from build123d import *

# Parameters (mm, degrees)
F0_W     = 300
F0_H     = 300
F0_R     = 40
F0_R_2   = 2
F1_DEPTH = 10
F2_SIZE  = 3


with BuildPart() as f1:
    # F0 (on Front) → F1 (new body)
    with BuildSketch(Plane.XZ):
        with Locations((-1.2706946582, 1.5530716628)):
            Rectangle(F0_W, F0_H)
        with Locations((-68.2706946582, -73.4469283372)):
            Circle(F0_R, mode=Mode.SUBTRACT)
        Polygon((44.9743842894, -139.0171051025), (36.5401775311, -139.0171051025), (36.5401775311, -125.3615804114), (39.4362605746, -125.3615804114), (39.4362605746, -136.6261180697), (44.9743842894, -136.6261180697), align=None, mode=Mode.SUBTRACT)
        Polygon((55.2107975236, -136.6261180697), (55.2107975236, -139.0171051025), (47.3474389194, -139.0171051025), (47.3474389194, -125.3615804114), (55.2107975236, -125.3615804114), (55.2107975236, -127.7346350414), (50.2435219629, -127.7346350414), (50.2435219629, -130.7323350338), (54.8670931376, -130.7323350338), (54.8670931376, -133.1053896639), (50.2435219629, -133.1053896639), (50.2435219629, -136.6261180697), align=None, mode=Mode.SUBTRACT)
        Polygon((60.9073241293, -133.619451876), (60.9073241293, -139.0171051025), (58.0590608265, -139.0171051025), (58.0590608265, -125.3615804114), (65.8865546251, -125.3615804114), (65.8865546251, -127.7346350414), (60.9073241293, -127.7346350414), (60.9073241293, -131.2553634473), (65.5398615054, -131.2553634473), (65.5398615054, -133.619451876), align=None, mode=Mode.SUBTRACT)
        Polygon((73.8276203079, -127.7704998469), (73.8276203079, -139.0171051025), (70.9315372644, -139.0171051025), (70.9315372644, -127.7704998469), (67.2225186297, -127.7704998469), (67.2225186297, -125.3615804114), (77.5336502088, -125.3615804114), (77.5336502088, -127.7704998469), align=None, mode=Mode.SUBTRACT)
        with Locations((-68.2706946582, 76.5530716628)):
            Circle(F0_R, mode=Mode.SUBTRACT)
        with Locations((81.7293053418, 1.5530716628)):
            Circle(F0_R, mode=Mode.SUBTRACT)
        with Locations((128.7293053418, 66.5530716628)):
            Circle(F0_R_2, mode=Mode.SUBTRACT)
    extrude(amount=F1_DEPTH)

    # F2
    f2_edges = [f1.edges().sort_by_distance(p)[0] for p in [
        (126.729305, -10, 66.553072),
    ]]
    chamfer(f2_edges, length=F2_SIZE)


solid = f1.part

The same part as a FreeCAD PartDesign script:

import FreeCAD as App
import Part
import Sketcher

V = App.Vector
Q = App.Units.Quantity


def edges_at(feature, points):
    """Names of the edges that pass closest to the given points."""
    edges = feature.Shape.Edges
    near = lambda p: min(range(len(edges)), key=lambda i: edges[i].distToShape(Part.Vertex(*p))[0])
    return sorted({f"Edge{near(p) + 1}" for p in points})


def add_polygon(sketch, points):
    """Adds a closed chain of lines whose ends are joined by coincident constraints."""
    first, n = sketch.GeometryCount, len(points)
    for a, b in zip(points, points[1:] + points[:1]):
        sketch.addGeometry(Part.LineSegment(App.Vector(*a, 0), App.Vector(*b, 0)), False)
    for i in range(n):
        sketch.addConstraint(Sketcher.Constraint("Coincident", first + i, 2, first + (i + 1) % n, 1))

doc = App.newDocument("Part")
body = doc.addObject("PartDesign::Body", "Body")

# Sketch on XZ plane
sketch1 = body.newObject("Sketcher::SketchObject", "Sketch")
sketch1.AttachmentSupport = (doc.getObject("XZ_Plane"), [""])
sketch1.MapMode = "FlatFace"
add_polygon(sketch1, [(-151.3, 151.6), (-151.3, -148.4), (148.7, -148.4), (148.7, 151.6)])  # lines 0-3
sketch1.addGeometry(Part.Circle(V(-68.3, -73.4, 0), V(0, 0, 1), 40), False)  # 4
add_polygon(sketch1, [(45, -136.6), (45, -139), (36.5, -139), (36.5, -125.4), (39.4, -125.4), (39.4, -136.6)])  # lines 5-10
add_polygon(sketch1, [(50.2, -136.6), (55.2, -136.6), (55.2, -139), (47.3, -139), (47.3, -125.4), (55.2, -125.4), (55.2, -127.7), (50.2, -127.7), (50.2, -130.7), (54.9, -130.7), (54.9, -133.1), (50.2, -133.1)])  # lines 11-22
add_polygon(sketch1, [(65.5, -133.6), (60.9, -133.6), (60.9, -139), (58.1, -139), (58.1, -125.4), (65.9, -125.4), (65.9, -127.7), (60.9, -127.7), (60.9, -131.3), (65.5, -131.3)])  # lines 23-32
add_polygon(sketch1, [(77.5, -127.8), (73.8, -127.8), (73.8, -139), (70.9, -139), (70.9, -127.8), (67.2, -127.8), (67.2, -125.4), (77.5, -125.4)])  # lines 33-40
sketch1.addGeometry(Part.Circle(V(-68.3, 76.6, 0), V(0, 0, 1), 40), False)  # 41
sketch1.addGeometry(Part.Circle(V(81.7, 1.6, 0), V(0, 0, 1), 40), False)  # 42
sketch1.addGeometry(Part.Circle(V(128.7, 66.6, 0), V(0, 0, 1), 2), False)  # 43
sketch1.addConstraint([
    Sketcher.Constraint("Vertical", 0),
    Sketcher.Constraint("Horizontal", 1),
    Sketcher.Constraint("Vertical", 2),
    Sketcher.Constraint("Horizontal", 3),
    Sketcher.Constraint("Vertical", 5),
    Sketcher.Constraint("Horizontal", 6),
    Sketcher.Constraint("Vertical", 7),
    Sketcher.Constraint("Horizontal", 8),
    Sketcher.Constraint("Vertical", 9),
    Sketcher.Constraint("Horizontal", 10),
    Sketcher.Constraint("Horizontal", 11),
    Sketcher.Constraint("Vertical", 12),
    Sketcher.Constraint("Horizontal", 13),
    Sketcher.Constraint("Vertical", 14),
    Sketcher.Constraint("Horizontal", 15),
    Sketcher.Constraint("Vertical", 16),
    Sketcher.Constraint("Horizontal", 17),
    Sketcher.Constraint("Vertical", 18),
    Sketcher.Constraint("Horizontal", 19),
    Sketcher.Constraint("Vertical", 20),
    Sketcher.Constraint("Horizontal", 21),
    Sketcher.Constraint("Vertical", 22),
    Sketcher.Constraint("Horizontal", 23),
    Sketcher.Constraint("Vertical", 24),
    Sketcher.Constraint("Horizontal", 25),
    Sketcher.Constraint("Vertical", 26),
    Sketcher.Constraint("Horizontal", 27),
    Sketcher.Constraint("Vertical", 28),
    Sketcher.Constraint("Horizontal", 29),
    Sketcher.Constraint("Vertical", 30),
    Sketcher.Constraint("Horizontal", 31),
    Sketcher.Constraint("Vertical", 32),
    Sketcher.Constraint("Horizontal", 33),
    Sketcher.Constraint("Vertical", 34),
    Sketcher.Constraint("Horizontal", 35),
    Sketcher.Constraint("Vertical", 36),
    Sketcher.Constraint("Horizontal", 37),
    Sketcher.Constraint("Vertical", 38),
    Sketcher.Constraint("Horizontal", 39),
    Sketcher.Constraint("Vertical", 40),
    Sketcher.Constraint("Equal", 4, 41),
    Sketcher.Constraint("Equal", 41, 42),
    Sketcher.Constraint("Horizontal", 10, 2, 11, 2),
    Sketcher.Constraint("Horizontal", 6, 2, 12, 2),
    Sketcher.Constraint("Horizontal", 8, 2, 14, 2),
    Sketcher.Constraint("Horizontal", 13, 2, 24, 2),
    Sketcher.Constraint("Horizontal", 15, 2, 26, 2),
    Sketcher.Constraint("Horizontal", 17, 2, 28, 2),
    Sketcher.Constraint("Horizontal", 25, 2, 34, 2),
    Sketcher.Constraint("Horizontal", 33, 2, 36, 2),
    Sketcher.Constraint("Horizontal", 27, 2, 38, 2),
    Sketcher.Constraint("Vertical", 4, 3, 41, 3),
    Sketcher.Constraint("Vertical", 12, 2, 15, 2),
    Sketcher.Constraint("Vertical", 18, 2, 21, 2),
    Sketcher.Constraint("Vertical", 24, 2, 29, 2),
    Sketcher.Constraint("Equal", 8, 35),
    Sketcher.Constraint("Equal", 3, 0),
    Sketcher.Constraint("Equal", 16, 20),
    Sketcher.Constraint("Equal", 22, 30),
    Sketcher.Constraint("Diameter", 4, Q("80 mm")),
    Sketcher.Constraint("Diameter", 43, Q("4 mm")),
    Sketcher.Constraint("DistanceX", 1, 1, 1, 2, Q("300 mm")),
    Sketcher.Constraint("DistanceY", 4, 3, 41, 3, Q("150 mm")),
    Sketcher.Constraint("DistanceX", 4, 3, 42, 3, Q("150 mm")),
    Sketcher.Constraint("DistanceY", 4, 3, 42, 3, Q("75 mm")),
    Sketcher.Constraint("DistanceX", 42, 3, 43, 3, Q("47 mm")),
    Sketcher.Constraint("DistanceY", 42, 3, 43, 3, Q("65 mm")),
    Sketcher.Constraint("DistanceX", 0, 2, 4, 3, Q("83 mm")),
    Sketcher.Constraint("DistanceY", 0, 2, 4, 3, Q("75 mm")),
    Sketcher.Constraint("DistanceY", 18, 2, 18, 1, Q("2.9977 mm")),
    Sketcher.Constraint("DistanceX", 13, 2, 13, 1, Q("7.863359 mm")),
    Sketcher.Constraint("DistanceX", 19, 1, 19, 2, Q("4.623571 mm")),
    Sketcher.Constraint("DistanceX", 29, 2, 29, 1, Q("4.97923 mm")),
    Sketcher.Constraint("DistanceX", 33, 2, 33, 1, Q("3.70603 mm")),
    Sketcher.Constraint("DistanceX", 37, 2, 37, 1, Q("3.709019 mm")),
    Sketcher.Constraint("DistanceX", 39, 1, 39, 2, Q("10.311132 mm")),
    Sketcher.Constraint("DistanceY", 22, 2, 22, 1, Q("3.520728 mm")),
    Sketcher.Constraint("DistanceY", 32, 2, 32, 1, Q("2.364088 mm")),
    Sketcher.Constraint("DistanceY", 38, 1, 38, 2, Q("2.408919 mm")),
    Sketcher.Constraint("DistanceY", 33, 2, -1, 1, Q("127.7705 mm")),
    Sketcher.Constraint("DistanceX", 6, 2, 6, 1, Q("8.434207 mm")),
    Sketcher.Constraint("DistanceX", 11, 1, 11, 2, Q("4.967276 mm")),
    Sketcher.Constraint("DistanceX", 23, 2, 23, 1, Q("4.632537 mm")),
    Sketcher.Constraint("DistanceX", 25, 2, 25, 1, Q("2.848263 mm")),
    Sketcher.Constraint("DistanceY", 5, 2, 5, 1, Q("2.390987 mm")),
    Sketcher.Constraint("DistanceY", 7, 1, 7, 2, Q("13.655525 mm")),
    Sketcher.Constraint("DistanceY", 4, 3, -1, 1, Q("73.446928 mm")),
    Sketcher.Constraint("DistanceX", -1, 1, 8, 2, Q("39.436261 mm")),
    Sketcher.Constraint("DistanceX", -1, 1, 13, 2, Q("47.347439 mm")),
    Sketcher.Constraint("DistanceX", -1, 1, 25, 2, Q("58.059061 mm")),
    Sketcher.Constraint("DistanceX", -1, 1, 33, 2, Q("73.82762 mm")),
    Sketcher.Constraint("DistanceX", 5, 2, 1, 2, Q("103.754921 mm")),
])
pad1 = body.newObject("PartDesign::Pad", "Pad")
pad1.Profile = sketch1
pad1.Length = 10
doc.recompute()

chamfer = body.newObject("PartDesign::Chamfer", "Chamfer")
chamfer.Base = (pad1, edges_at(pad1, [(126.729, -10, 66.553)]))
chamfer.Size = 3

doc.recompute()
